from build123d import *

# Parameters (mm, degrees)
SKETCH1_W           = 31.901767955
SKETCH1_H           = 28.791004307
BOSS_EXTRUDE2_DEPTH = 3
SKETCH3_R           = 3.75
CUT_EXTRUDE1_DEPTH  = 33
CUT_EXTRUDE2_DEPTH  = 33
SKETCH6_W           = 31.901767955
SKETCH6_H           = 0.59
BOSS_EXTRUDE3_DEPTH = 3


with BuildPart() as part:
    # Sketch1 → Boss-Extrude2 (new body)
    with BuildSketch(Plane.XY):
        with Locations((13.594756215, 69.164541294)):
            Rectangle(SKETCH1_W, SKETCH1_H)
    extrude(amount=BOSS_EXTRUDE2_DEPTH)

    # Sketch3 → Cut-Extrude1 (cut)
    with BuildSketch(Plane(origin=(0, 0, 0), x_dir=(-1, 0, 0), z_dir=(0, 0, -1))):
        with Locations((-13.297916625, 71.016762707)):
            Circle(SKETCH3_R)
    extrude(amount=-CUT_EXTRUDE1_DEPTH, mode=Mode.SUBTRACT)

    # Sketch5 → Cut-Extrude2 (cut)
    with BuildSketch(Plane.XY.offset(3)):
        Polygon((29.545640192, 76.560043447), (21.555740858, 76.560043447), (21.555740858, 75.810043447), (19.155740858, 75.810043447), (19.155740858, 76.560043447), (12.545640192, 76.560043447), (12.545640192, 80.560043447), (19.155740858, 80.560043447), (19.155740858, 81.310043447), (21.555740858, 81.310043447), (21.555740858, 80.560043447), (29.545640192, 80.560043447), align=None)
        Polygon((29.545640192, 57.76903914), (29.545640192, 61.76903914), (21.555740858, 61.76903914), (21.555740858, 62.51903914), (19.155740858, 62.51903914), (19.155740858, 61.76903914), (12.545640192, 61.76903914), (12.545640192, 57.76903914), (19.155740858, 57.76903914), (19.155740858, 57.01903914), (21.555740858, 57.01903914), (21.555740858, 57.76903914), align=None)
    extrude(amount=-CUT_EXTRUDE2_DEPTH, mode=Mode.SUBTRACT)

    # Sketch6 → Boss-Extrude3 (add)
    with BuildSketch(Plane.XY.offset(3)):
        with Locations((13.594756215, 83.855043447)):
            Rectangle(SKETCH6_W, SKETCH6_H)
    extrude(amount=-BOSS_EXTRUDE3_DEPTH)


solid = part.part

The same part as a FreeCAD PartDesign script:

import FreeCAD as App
import Part
import Sketcher

V = App.Vector
Q = App.Units.Quantity


def add_polygon(sketch, points):
    """Adds a closed chain of lines whose ends are joined by coincident constraints."""
    first, n = sketch.GeometryCount, len(points)
    for a, b in zip(points, points[1:] + points[:1]):
        sketch.addGeometry(Part.LineSegment(App.Vector(*a, 0), App.Vector(*b, 0)), False)
    for i in range(n):
        sketch.addConstraint(Sketcher.Constraint("Coincident", first + i, 2, first + (i + 1) % n, 1))

doc = App.newDocument("Part")
body = doc.addObject("PartDesign::Body", "Body")

# Sketch on XY plane
sketch1 = body.newObject("Sketcher::SketchObject", "Sketch")
sketch1.AttachmentSupport = (doc.getObject("XY_Plane"), [""])
sketch1.MapMode = "FlatFace"
add_polygon(sketch1, [(-2.356128, 83.560043), (-2.356128, 54.769039), (29.54564, 54.769039), (29.54564, 83.560043)])  # lines 0-3
sketch1.addConstraint([
    Sketcher.Constraint("Vertical", 0),
    Sketcher.Constraint("Horizontal", 1),
    Sketcher.Constraint("Vertical", 2),
    Sketcher.Constraint("Horizontal", 3),
    Sketcher.Constraint("DistanceX", 1, 1, 1, 2, Q("31.901768 mm")),
    Sketcher.Constraint("DistanceY", 0, 2, 0, 1, Q("28.791004 mm")),
    Sketcher.Constraint("DistanceY", -1, 1, 0, 2, Q("54.769039 mm")),
    Sketcher.Constraint("DistanceX", -1, 1, 1, 2, Q("29.54564 mm")),
])
pad1 = body.newObject("PartDesign::Pad", "Pad")
pad1.Profile = sketch1
pad1.Length = 3

# Sketch on XY plane
sketch2 = body.newObject("Sketcher::SketchObject", "Sketch001")
sketch2.AttachmentSupport = (doc.getObject("XY_Plane"), [""])
sketch2.MapMode = "FlatFace"
sketch2.addGeometry(Part.Circle(V(13.297917, 71.016763, 0), V(0, 0, 1), 3.75), False)
sketch2.addConstraint([
    Sketcher.Constraint("Diameter", 0, Q("7.5 mm")),
    Sketcher.Constraint("DistanceX", -1, 1, 0, 3, Q("13.297917 mm")),
    Sketcher.Constraint("DistanceY", -1, 1, 0, 3, Q("71.016763 mm")),
])
pocket1 = body.newObject("PartDesign::Pocket", "Pocket")
pocket1.Profile = sketch2
pocket1.Length = 33
pocket1.Reversed = True

# Sketch on XY plane
sketch3 = body.newObject("Sketcher::SketchObject", "Sketch002")
sketch3.AttachmentSupport = (doc.getObject("XY_Plane"), [""])
sketch3.MapMode = "FlatFace"
sketch3.AttachmentOffset = App.Placement(V(0, 0, 3), App.Rotation())
add_polygon(sketch3, [(21.555741, 76.560043), (29.54564, 76.560043), (29.54564, 80.560043), (21.555741, 80.560043), (21.555741, 81.310043), (19.155741, 81.310043), (19.155741, 80.560043), (12.54564, 80.560043), (12.54564, 76.560043), (19.155741, 76.560043), (19.155741, 75.810043), (21.555741, 75.810043)])  # lines 0-11
add_polygon(sketch3, [(29.54564, 57.769039), (29.54564, 61.769039), (21.555741, 61.769039), (21.555741, 62.519039), (19.155741, 62.519039), (19.155741, 61.769039), (12.54564, 61.769039), (12.54564, 57.769039), (19.155741, 57.769039), (19.155741, 57.019039), (21.555741, 57.019039), (21.555741, 57.769039)])  # lines 12-23
sketch3.addConstraint([
    Sketcher.Constraint("Horizontal", 0),
    Sketcher.Constraint("Vertical", 1),
    Sketcher.Constraint("Horizontal", 2),
    Sketcher.Constraint("Vertical", 3),
    Sketcher.Constraint("Horizontal", 4),
    Sketcher.Constraint("Vertical", 5),
    Sketcher.Constraint("Horizontal", 6),
    Sketcher.Constraint("Vertical", 7),
    Sketcher.Constraint("Horizontal", 8),
    Sketcher.Constraint("Vertical", 9),
    Sketcher.Constraint("Horizontal", 10),
    Sketcher.Constraint("Vertical", 11),
    Sketcher.Constraint("Vertical", 12),
    Sketcher.Constraint("Horizontal", 13),
    Sketcher.Constraint("Vertical", 14),
    Sketcher.Constraint("Horizontal", 15),
    Sketcher.Constraint("Vertical", 16),
    Sketcher.Constraint("Horizontal", 17),
    Sketcher.Constraint("Vertical", 18),
    Sketcher.Constraint("Horizontal", 19),
    Sketcher.Constraint("Vertical", 20),
    Sketcher.Constraint("Horizontal", 21),
    Sketcher.Constraint("Vertical", 22),
    Sketcher.Constraint("Horizontal", 23),
    Sketcher.Constraint("Horizontal", 2, 2, 5, 2),
    Sketcher.Constraint("Horizontal", 0, 2, 7, 2),
    Sketcher.Constraint("Horizontal", 13, 2, 16, 2),
    Sketcher.Constraint("Horizontal", 19, 2, 22, 2),
    Sketcher.Constraint("Vertical", 5, 2, 8, 2),
    Sketcher.Constraint("Vertical", 3, 2, 10, 2),
    Sketcher.Constraint("Vertical", 1, 2, 12, 2),
    Sketcher.Constraint("Vertical", 11, 2, 13, 2),
    Sketcher.Constraint("Vertical", 9, 2, 15, 2),
    Sketcher.Constraint("Vertical", 7, 2, 17, 2),
    Sketcher.Constraint("Vertical", 16, 2, 19, 2),
    Sketcher.Constraint("Vertical", 14, 2, 21, 2),
    Sketcher.Constraint("Equal", 5, 9),
    Sketcher.Constraint("Equal", 7, 12),
    Sketcher.Constraint("Equal", 11, 14),
    Sketcher.Constraint("Equal", 16, 20),
    Sketcher.Constraint("DistanceY", 1, 1, 1, 2, Q("4 mm")),
    Sketcher.Constraint("DistanceX", 4, 2, 4, 1, Q("2.4 mm")),
    Sketcher.Constraint("DistanceX", 6, 2, 1, 2, Q("17 mm")),
    Sketcher.Constraint("DistanceY", 3, 1, 3, 2, Q("0.75 mm")),
    Sketcher.Constraint("DistanceX", 0, 1, 0, 2, Q("7.989899 mm")),
    Sketcher.Constraint("DistanceX", -1, 1, 0, 2, Q("29.54564 mm")),
    Sketcher.Constraint("DistanceY", -1, 1, 12, 2, Q("61.769039 mm")),
    Sketcher.Constraint("DistanceY", -1, 1, 0, 2, Q("76.560043 mm")),
])
pocket2 = body.newObject("PartDesign::Pocket", "Pocket001")
pocket2.Profile = sketch3
pocket2.Length = 33

# Sketch on XY plane
sketch4 = body.newObject("Sketcher::SketchObject", "Sketch003")
sketch4.AttachmentSupport = (doc.getObject("XY_Plane"), [""])
sketch4.MapMode = "FlatFace"
sketch4.AttachmentOffset = App.Placement(V(0, 0, 3), App.Rotation())
add_polygon(sketch4, [(-2.356128, 84.150043), (-2.356128, 83.560043), (29.54564, 83.560043), (29.54564, 84.150043)])  # lines 0-3
sketch4.addConstraint([
    Sketcher.Constraint("Vertical", 0),
    Sketcher.Constraint("Horizontal", 1),
    Sketcher.Constraint("Vertical", 2),
    Sketcher.Constraint("Horizontal", 3),
    Sketcher.Constraint("DistanceY", 0, 2, 0, 1, Q("0.59 mm")),
    Sketcher.Constraint("DistanceX", 1, 1, 1, 2, Q("31.901768 mm")),
    Sketcher.Constraint("DistanceX", -1, 1, 1, 2, Q("29.54564 mm")),
    Sketcher.Constraint("DistanceY", -1, 1, 0, 2, Q("83.560043 mm")),
])
pad2 = body.newObject("PartDesign::Pad", "Pad001")
pad2.Profile = sketch4
pad2.Length = 3
pad2.Reversed = True

doc.recompute()
